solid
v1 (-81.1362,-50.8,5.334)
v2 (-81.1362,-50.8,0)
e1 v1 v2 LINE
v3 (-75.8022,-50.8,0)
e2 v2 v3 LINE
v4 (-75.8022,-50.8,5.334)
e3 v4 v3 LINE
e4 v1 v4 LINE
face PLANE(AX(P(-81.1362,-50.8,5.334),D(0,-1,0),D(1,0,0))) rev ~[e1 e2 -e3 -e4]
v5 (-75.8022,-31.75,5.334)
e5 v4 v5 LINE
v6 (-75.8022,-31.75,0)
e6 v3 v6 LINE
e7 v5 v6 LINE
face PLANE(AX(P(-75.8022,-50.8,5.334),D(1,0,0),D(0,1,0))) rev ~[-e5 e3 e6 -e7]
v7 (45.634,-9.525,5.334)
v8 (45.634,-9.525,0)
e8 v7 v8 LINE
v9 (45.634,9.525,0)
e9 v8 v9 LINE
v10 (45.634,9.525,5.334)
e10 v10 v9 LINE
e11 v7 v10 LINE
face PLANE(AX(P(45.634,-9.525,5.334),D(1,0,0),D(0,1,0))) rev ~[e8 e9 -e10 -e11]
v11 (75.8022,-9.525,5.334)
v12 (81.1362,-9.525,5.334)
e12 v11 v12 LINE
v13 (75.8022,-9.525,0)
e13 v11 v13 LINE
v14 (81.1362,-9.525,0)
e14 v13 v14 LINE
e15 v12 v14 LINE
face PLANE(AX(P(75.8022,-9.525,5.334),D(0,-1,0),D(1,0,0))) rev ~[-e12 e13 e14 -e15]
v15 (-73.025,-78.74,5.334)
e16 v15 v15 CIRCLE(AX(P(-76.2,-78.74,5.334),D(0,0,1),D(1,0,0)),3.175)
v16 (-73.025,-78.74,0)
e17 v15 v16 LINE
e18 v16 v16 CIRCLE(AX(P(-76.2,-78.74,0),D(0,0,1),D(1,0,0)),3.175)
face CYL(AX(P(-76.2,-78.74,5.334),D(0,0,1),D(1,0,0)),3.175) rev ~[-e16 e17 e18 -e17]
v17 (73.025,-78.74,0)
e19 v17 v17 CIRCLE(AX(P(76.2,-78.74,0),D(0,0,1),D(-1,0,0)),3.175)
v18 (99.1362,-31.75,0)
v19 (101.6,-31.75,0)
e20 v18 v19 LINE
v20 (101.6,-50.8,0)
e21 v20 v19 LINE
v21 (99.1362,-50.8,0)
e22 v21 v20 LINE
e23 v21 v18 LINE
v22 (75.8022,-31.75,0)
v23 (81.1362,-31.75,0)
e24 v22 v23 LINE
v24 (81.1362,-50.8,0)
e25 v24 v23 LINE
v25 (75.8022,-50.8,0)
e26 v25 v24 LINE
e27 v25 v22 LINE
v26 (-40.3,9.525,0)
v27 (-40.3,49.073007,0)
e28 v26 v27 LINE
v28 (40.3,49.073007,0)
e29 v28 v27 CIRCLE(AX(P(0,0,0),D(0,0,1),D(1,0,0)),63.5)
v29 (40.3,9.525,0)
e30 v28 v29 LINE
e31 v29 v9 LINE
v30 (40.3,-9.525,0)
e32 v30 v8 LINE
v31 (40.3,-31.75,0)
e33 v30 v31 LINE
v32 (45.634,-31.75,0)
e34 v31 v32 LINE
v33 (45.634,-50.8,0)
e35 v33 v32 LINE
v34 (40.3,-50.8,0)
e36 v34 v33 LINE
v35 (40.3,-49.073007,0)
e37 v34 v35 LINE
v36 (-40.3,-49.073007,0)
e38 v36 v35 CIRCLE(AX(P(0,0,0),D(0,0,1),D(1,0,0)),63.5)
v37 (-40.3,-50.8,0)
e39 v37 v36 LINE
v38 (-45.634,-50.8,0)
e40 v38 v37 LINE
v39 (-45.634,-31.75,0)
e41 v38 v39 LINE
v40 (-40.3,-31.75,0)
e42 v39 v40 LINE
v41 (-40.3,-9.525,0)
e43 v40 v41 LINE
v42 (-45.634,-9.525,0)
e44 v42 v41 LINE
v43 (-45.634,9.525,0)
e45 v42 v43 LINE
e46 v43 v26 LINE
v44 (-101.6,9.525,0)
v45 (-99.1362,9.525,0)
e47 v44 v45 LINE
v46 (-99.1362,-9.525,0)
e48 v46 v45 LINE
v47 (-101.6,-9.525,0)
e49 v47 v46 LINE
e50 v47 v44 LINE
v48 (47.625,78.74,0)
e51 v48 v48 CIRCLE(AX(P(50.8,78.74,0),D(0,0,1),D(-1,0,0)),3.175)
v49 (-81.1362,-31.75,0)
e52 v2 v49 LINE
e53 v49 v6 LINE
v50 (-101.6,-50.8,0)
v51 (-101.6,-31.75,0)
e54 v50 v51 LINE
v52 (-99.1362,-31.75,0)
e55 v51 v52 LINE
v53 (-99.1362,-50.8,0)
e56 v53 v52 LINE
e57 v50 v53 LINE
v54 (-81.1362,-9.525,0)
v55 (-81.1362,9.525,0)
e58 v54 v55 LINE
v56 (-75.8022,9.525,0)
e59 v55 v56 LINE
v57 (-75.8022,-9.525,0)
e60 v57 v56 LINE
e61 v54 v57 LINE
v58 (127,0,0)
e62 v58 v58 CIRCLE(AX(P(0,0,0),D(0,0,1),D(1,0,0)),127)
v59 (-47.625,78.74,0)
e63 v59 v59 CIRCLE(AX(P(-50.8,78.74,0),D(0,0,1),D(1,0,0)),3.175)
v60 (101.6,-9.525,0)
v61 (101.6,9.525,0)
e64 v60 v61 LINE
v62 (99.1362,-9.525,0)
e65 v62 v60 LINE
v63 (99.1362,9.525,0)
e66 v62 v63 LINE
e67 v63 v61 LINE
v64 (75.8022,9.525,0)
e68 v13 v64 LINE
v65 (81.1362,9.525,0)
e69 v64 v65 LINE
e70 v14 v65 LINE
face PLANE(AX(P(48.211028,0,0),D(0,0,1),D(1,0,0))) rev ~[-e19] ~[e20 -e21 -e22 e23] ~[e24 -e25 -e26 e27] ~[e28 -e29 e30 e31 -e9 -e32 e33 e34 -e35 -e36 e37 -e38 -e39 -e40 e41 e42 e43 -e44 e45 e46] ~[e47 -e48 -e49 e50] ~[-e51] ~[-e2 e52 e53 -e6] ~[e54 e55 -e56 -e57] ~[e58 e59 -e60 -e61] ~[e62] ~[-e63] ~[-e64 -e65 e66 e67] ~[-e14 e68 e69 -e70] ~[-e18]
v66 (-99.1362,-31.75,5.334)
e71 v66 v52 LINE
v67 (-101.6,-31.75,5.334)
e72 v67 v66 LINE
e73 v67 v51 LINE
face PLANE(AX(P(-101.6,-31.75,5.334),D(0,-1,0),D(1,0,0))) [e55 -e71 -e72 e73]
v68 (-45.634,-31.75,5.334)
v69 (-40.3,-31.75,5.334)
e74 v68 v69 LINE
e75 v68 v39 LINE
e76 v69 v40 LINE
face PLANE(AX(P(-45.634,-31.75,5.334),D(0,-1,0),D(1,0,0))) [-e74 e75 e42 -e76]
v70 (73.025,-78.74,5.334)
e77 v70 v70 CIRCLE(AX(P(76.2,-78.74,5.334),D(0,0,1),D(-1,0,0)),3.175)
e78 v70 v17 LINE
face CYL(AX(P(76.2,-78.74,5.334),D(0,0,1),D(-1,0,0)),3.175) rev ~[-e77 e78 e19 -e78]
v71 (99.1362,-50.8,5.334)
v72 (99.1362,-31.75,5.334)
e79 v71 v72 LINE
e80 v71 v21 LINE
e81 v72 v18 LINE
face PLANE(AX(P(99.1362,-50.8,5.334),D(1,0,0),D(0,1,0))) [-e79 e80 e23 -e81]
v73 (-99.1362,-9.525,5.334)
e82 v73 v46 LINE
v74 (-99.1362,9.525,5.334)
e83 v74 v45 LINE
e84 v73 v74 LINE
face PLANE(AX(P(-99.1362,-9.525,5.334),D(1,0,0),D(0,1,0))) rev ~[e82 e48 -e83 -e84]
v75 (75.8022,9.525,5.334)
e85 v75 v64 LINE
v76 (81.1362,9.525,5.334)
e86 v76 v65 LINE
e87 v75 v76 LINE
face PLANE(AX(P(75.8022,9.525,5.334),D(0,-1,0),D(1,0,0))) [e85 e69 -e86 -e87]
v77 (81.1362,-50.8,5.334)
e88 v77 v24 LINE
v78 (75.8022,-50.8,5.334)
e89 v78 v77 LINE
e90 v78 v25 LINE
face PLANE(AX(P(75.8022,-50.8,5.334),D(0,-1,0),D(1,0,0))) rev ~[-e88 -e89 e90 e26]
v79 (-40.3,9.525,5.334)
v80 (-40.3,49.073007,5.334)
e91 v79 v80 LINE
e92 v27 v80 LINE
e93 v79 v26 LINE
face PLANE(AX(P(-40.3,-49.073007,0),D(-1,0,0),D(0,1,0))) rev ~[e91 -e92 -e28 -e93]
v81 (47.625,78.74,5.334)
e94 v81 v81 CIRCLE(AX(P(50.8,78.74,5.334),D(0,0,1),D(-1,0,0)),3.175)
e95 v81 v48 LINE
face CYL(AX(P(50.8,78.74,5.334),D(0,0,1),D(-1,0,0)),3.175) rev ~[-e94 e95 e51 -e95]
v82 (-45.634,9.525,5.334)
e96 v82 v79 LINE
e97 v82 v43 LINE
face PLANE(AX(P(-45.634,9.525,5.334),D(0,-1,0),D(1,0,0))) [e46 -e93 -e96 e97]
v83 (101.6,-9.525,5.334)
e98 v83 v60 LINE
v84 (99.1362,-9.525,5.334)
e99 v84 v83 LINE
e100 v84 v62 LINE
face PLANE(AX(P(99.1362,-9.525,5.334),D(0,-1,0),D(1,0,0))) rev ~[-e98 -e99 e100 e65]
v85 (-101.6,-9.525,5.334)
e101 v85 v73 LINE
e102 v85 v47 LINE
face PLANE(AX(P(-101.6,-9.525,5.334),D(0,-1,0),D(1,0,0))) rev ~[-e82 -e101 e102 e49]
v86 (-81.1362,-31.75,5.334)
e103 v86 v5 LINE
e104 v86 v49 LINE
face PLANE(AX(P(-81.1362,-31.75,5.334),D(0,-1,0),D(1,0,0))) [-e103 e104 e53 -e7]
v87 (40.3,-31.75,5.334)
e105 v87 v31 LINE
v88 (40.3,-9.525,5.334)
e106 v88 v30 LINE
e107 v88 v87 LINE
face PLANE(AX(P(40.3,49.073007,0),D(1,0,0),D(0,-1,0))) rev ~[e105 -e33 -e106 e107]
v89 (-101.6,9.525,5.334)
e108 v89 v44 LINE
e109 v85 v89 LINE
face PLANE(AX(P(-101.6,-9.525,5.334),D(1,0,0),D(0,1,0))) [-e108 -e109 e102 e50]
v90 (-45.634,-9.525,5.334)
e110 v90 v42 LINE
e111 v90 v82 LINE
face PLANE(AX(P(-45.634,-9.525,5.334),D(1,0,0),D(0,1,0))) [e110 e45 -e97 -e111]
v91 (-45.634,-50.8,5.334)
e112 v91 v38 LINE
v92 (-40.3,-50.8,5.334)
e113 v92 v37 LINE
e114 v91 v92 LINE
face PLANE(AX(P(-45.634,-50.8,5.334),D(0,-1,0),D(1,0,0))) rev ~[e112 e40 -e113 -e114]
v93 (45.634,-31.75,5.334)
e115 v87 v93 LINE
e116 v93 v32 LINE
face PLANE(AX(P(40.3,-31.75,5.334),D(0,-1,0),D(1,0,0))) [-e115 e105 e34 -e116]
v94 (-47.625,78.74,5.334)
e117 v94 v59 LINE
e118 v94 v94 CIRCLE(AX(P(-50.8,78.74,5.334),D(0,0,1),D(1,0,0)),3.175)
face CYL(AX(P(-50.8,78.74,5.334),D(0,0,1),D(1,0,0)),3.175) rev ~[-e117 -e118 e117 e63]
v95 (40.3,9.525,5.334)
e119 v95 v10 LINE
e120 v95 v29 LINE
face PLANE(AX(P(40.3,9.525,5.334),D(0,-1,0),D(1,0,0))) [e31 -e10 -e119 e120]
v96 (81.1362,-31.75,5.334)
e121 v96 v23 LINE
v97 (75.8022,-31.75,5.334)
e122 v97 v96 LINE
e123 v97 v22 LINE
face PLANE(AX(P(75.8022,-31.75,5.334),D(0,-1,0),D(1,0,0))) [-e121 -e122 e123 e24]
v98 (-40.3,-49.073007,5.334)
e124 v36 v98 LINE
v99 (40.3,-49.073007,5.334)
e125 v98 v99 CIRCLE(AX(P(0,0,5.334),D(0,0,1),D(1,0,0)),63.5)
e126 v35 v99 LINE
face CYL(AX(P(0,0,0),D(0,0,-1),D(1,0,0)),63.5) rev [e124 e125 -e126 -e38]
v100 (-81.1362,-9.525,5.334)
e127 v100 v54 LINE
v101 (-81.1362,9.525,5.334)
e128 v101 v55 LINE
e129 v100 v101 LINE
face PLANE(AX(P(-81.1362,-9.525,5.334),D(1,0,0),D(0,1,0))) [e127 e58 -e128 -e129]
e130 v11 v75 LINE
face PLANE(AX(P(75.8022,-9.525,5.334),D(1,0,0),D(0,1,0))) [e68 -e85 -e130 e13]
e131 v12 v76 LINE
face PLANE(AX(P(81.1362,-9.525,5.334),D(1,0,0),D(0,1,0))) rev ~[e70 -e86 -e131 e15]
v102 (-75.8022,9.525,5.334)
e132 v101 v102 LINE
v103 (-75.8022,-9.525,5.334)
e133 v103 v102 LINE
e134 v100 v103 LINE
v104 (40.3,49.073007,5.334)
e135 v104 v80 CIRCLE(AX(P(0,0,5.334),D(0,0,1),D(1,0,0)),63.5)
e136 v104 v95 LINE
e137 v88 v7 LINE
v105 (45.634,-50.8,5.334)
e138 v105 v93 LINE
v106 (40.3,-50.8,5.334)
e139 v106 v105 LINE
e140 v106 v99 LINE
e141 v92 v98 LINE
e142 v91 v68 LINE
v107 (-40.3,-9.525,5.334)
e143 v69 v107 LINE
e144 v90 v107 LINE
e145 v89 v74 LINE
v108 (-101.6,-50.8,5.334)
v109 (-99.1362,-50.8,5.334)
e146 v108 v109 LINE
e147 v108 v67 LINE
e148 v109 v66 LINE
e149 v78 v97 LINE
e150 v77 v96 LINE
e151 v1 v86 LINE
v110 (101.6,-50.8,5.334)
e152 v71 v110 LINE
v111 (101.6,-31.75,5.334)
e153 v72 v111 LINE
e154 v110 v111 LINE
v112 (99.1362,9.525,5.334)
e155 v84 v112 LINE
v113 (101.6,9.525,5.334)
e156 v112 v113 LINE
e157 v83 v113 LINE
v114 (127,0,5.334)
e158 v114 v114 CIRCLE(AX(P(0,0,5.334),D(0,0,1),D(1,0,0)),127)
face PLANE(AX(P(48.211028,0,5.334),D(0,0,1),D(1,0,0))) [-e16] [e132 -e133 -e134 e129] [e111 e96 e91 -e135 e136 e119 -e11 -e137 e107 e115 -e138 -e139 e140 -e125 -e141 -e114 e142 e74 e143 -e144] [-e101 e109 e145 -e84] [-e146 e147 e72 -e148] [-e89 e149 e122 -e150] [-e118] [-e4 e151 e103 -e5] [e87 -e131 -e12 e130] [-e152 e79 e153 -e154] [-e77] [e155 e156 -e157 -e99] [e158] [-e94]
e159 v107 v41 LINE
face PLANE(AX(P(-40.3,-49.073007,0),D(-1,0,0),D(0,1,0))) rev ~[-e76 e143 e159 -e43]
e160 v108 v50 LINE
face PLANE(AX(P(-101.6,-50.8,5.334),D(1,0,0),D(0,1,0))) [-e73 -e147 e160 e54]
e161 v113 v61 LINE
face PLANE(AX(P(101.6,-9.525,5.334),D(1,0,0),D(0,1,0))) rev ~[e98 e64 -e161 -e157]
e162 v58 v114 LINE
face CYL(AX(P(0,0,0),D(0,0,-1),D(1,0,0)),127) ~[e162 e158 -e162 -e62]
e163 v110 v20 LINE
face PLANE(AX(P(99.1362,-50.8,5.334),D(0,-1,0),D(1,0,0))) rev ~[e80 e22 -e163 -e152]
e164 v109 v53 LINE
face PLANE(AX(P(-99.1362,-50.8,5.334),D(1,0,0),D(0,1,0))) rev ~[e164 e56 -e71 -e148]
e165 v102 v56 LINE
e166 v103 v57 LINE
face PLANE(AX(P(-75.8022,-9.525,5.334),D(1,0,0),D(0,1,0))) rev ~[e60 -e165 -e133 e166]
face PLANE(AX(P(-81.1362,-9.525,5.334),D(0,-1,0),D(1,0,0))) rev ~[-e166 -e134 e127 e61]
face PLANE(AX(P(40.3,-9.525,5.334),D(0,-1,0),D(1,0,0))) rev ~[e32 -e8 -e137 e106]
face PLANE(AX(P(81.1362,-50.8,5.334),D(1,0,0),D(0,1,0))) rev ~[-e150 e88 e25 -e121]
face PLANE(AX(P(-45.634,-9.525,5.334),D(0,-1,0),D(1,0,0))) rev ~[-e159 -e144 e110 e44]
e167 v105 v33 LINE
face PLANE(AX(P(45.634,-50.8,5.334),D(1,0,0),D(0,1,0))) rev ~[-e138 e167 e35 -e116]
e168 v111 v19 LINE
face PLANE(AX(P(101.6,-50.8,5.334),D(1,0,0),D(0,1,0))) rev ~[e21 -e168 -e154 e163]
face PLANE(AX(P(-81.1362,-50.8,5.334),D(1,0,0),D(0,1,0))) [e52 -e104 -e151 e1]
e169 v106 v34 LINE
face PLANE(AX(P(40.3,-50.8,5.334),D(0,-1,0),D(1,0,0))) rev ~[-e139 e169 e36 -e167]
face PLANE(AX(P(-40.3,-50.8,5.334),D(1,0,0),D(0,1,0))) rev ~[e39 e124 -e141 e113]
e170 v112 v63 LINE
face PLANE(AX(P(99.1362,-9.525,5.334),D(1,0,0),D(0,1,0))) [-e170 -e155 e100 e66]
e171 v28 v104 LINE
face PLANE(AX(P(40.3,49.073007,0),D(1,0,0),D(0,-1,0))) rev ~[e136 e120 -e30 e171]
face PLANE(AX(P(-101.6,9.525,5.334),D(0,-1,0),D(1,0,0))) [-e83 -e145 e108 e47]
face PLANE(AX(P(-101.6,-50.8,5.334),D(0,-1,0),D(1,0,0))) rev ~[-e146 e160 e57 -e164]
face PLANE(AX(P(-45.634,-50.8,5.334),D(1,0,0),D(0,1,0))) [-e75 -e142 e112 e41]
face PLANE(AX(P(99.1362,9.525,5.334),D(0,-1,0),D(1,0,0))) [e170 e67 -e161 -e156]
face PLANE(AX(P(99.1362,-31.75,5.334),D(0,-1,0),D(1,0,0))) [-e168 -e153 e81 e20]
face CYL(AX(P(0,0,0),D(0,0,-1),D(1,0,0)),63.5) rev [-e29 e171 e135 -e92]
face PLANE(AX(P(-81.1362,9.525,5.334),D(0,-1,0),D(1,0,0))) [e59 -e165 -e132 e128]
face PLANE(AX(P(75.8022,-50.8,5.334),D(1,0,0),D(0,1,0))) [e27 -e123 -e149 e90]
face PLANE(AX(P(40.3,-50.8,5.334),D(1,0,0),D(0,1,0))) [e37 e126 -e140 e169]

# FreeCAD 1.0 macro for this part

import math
import FreeCAD as App
import Part
import Sketcher

V = App.Vector
Q = App.Units.Quantity


def add_polygon(sketch, points):
    """Adds a closed chain of lines whose ends are joined by coincident constraints."""
    first, n = sketch.GeometryCount, len(points)
    for a, b in zip(points, points[1:] + points[:1]):
        sketch.addGeometry(Part.LineSegment(App.Vector(*a, 0), App.Vector(*b, 0)), False)
    for i in range(n):
        sketch.addConstraint(Sketcher.Constraint("Coincident", first + i, 2, first + (i + 1) % n, 1))

doc = App.newDocument("Part")
body = doc.addObject("PartDesign::Body", "Body")

# Sketch on XY plane
sketch1 = doc.addObject("Sketcher::SketchObject", "Sketch")
body.addObject(sketch1)
sketch1.AttachmentSupport = (doc.XY_Plane, [""])
sketch1.MapMode = "FlatFace"
sketch1.addGeometry([
    Part.Circle(V(0, 0, 0), V(0, 0, 1), 127),  # 0
    Part.ArcOfCircle(Part.Circle(V(0, 0, 0), V(0, 0, 1), 63.5), math.radians(50.606291), math.radians(129.393709)),  # 1
    Part.LineSegment(V(40.3, 49.073007, 0), V(40.3, -49.073007, 0)),  # 2
    Part.ArcOfCircle(Part.Circle(V(0, 0, 0), V(0, 0, 1), 63.5), math.radians(-129.393709), math.radians(-50.606291)),  # 3
    Part.LineSegment(V(-40.3, -49.073007, 0), V(-40.3, 49.073007, 0)),  # 4
], False)
sketch1.addConstraint([
    Sketcher.Constraint("Coincident", 1, 1, 2, 1),
    Sketcher.Constraint("Coincident", 2, 2, 3, 2),
    Sketcher.Constraint("Coincident", 3, 1, 4, 1),
    Sketcher.Constraint("Coincident", 4, 2, 1, 2),
    Sketcher.Constraint("Vertical", 2),
    Sketcher.Constraint("Vertical", 4),
    Sketcher.Constraint("Coincident", 0, 3, -1, 1),
    Sketcher.Constraint("Coincident", 1, 3, -1, 1),
    Sketcher.Constraint("Coincident", 3, 3, -1, 1),
    Sketcher.Constraint("Equal", 1, 3),
    Sketcher.Constraint("Horizontal", 2, 2, 3, 1),
    Sketcher.Constraint("Diameter", 0, Q("10 in")),
    Sketcher.Constraint("Radius", 1, Q("2.5 in")),
    Sketcher.Constraint("DistanceX", -1, 1, 1, 1, 40.3),
])
pad1 = doc.addObject("PartDesign::Pad", "Pad")
body.addObject(pad1)
pad1.Profile = sketch1
pad1.Length = Q("0.21 in")

# Sketch on XY plane
sketch2 = doc.addObject("Sketcher::SketchObject", "Sketch001")
body.addObject(sketch2)
sketch2.AttachmentSupport = (doc.XY_Plane, [""])
sketch2.MapMode = "FlatFace"
sketch2.AttachmentOffset = App.Placement(V(0, 0, 0.21 * 25.4), App.Rotation())
sketch2.addGeometry([
    Part.Circle(V(-76.2, -78.74, 0), V(0, 0, 1), 3.175),
    Part.Circle(V(-50.8, 78.74, 0), V(0, 0, 1), 3.175),
    Part.Circle(V(76.2, -78.74, 0), V(0, 0, 1), 3.175),
    Part.Circle(V(50.8, 78.74, 0), V(0, 0, 1), 3.175),
], False)
sketch2.addConstraint([
    Sketcher.Constraint("Equal", 0, 1),
    Sketcher.Constraint("Equal", 1, 2),
    Sketcher.Constraint("Equal", 2, 3),
    Sketcher.Constraint("Symmetric", 0, 3, 2, 3, -2),
    Sketcher.Constraint("Symmetric", 1, 3, 3, 3, -2),
    Sketcher.Constraint("Diameter", 0, Q("0.25 in")),
    Sketcher.Constraint("DistanceX", 0, 3, -1, 1, Q("3 in")),
    Sketcher.Constraint("DistanceX", 1, 3, -1, 1, Q("2 in")),
    Sketcher.Constraint("DistanceY", 0, 3, -1, 1, Q("3.1 in")),
    Sketcher.Constraint("DistanceY", -1, 1, 1, 3, Q("3.1 in")),
])
pocket1 = doc.addObject("PartDesign::Pocket", "Pocket")
body.addObject(pocket1)
pocket1.Profile = sketch2
pocket1.Type = "ThroughAll"

# Sketch on XY plane
sketch3 = doc.addObject("Sketcher::SketchObject", "Sketch002")
body.addObject(sketch3)
sketch3.AttachmentSupport = (doc.XY_Plane, [""])
sketch3.MapMode = "FlatFace"
sketch3.AttachmentOffset = App.Placement(V(0, 0, 0.21 * 25.4), App.Rotation())
add_polygon(sketch3, [(-101.6, -31.75), (-101.6, -50.8), (-99.1362, -50.8), (-99.1362, -31.75)])  # lines 0-3
add_polygon(sketch3, [(-101.6, 9.525), (-101.6, -9.525), (-99.1362, -9.525), (-99.1362, 9.525)])  # lines 4-7
add_polygon(sketch3, [(-81.1362, -31.75), (-81.1362, -50.8), (-75.8022, -50.8), (-75.8022, -31.75)])  # lines 8-11
add_polygon(sketch3, [(-45.634, -31.75), (-45.634, -50.8), (-40.3, -50.8), (-40.3, -31.75)])  # lines 12-15
add_polygon(sketch3, [(-81.1362, 9.525), (-81.1362, -9.525), (-75.8022, -9.525), (-75.8022, 9.525)])  # lines 16-19
add_polygon(sketch3, [(40.3, 9.525), (40.3, -9.525), (45.634, -9.525), (45.634, 9.525)])  # lines 20-23
add_polygon(sketch3, [(40.3, -31.75), (40.3, -50.8), (45.634, -50.8), (45.634, -31.75)])  # lines 24-27
add_polygon(sketch3, [(75.8022, 9.525), (75.8022, -9.525), (81.1362, -9.525), (81.1362, 9.525)])  # lines 28-31
add_polygon(sketch3, [(99.1362, 9.525), (99.1362, -9.525), (101.6, -9.525), (101.6, 9.525)])  # lines 32-35
add_polygon(sketch3, [(-45.634, 9.525), (-45.634, -9.525), (-40.3, -9.525), (-40.3, 9.525)])  # lines 36-39
add_polygon(sketch3, [(75.8022, -31.75), (75.8022, -50.8), (81.1362, -50.8), (81.1362, -31.75)])  # lines 40-43
add_polygon(sketch3, [(99.1362, -31.75), (99.1362, -50.8), (101.6, -50.8), (101.6, -31.75)])  # lines 44-47
sketch3.addConstraint([
    Sketcher.Constraint("Vertical", 0),
    Sketcher.Constraint("Horizontal", 1),
    Sketcher.Constraint("Vertical", 2),
    Sketcher.Constraint("Horizontal", 3),
    Sketcher.Constraint("Vertical", 4),
    Sketcher.Constraint("Horizontal", 5),
    Sketcher.Constraint("Vertical", 6),
    Sketcher.Constraint("Horizontal", 7),
    Sketcher.Constraint("Vertical", 8),
    Sketcher.Constraint("Horizontal", 9),
    Sketcher.Constraint("Vertical", 10),
    Sketcher.Constraint("Horizontal", 11),
    Sketcher.Constraint("Vertical", 12),
    Sketcher.Constraint("Horizontal", 13),
    Sketcher.Constraint("Vertical", 14),
    Sketcher.Constraint("Horizontal", 15),
    Sketcher.Constraint("Vertical", 16),
    Sketcher.Constraint("Horizontal", 17),
    Sketcher.Constraint("Vertical", 18),
    Sketcher.Constraint("Horizontal", 19),
    Sketcher.Constraint("Vertical", 20),
    Sketcher.Constraint("Horizontal", 21),
    Sketcher.Constraint("Vertical", 22),
    Sketcher.Constraint("Horizontal", 23),
    Sketcher.Constraint("Vertical", 24),
    Sketcher.Constraint("Horizontal", 25),
    Sketcher.Constraint("Vertical", 26),
    Sketcher.Constraint("Horizontal", 27),
    Sketcher.Constraint("Vertical", 28),
    Sketcher.Constraint("Horizontal", 29),
    Sketcher.Constraint("Vertical", 30),
    Sketcher.Constraint("Horizontal", 31),
    Sketcher.Constraint("Vertical", 32),
    Sketcher.Constraint("Horizontal", 33),
    Sketcher.Constraint("Vertical", 34),
    Sketcher.Constraint("Horizontal", 35),
    Sketcher.Constraint("Vertical", 36),
    Sketcher.Constraint("Horizontal", 37),
    Sketcher.Constraint("Vertical", 38),
    Sketcher.Constraint("Horizontal", 39),
    Sketcher.Constraint("Vertical", 40),
    Sketcher.Constraint("Horizontal", 41),
    Sketcher.Constraint("Vertical", 42),
    Sketcher.Constraint("Horizontal", 43),
    Sketcher.Constraint("Vertical", 44),
    Sketcher.Constraint("Horizontal", 45),
    Sketcher.Constraint("Vertical", 46),
    Sketcher.Constraint("Horizontal", 47),
    Sketcher.Constraint("Symmetric", 18, 2, 28, 2, -1, 1),
    Sketcher.Constraint("Symmetric", 16, 2, 30, 2, -1, 1),
    Sketcher.Constraint("Symmetric", 6, 2, 32, 2, -1, 1),
    Sketcher.Constraint("Symmetric", 4, 2, 34, 2, -1, 1),
    Sketcher.Constraint("Symmetric", 22, 2, 36, 2, -1, 1),
    Sketcher.Constraint("Symmetric", 20, 2, 38, 2, -1, 1),
    Sketcher.Constraint("Symmetric", 13, 2, 24, 2, -2),
    Sketcher.Constraint("Symmetric", 15, 2, 26, 2, -2),
    Sketcher.Constraint("Symmetric", 9, 2, 40, 2, -2),
    Sketcher.Constraint("Symmetric", 11, 2, 42, 2, -2),
    Sketcher.Constraint("Symmetric", 1, 2, 44, 2, -2),
    Sketcher.Constraint("Symmetric", 3, 2, 46, 2, -2),
    Sketcher.Constraint("Horizontal", 1, 2, 8, 2),
    Sketcher.Constraint("Horizontal", 3, 2, 10, 2),
    Sketcher.Constraint("Horizontal", 9, 2, 12, 2),
    Sketcher.Constraint("Horizontal", 11, 2, 14, 2),
    Sketcher.Constraint("Horizontal", 5, 2, 16, 2),
    Sketcher.Constraint("Horizontal", 7, 2, 18, 2),
    Sketcher.Constraint("Horizontal", 17, 2, 20, 2),
    Sketcher.Constraint("Horizontal", 19, 2, 22, 2),
    Sketcher.Constraint("Horizontal", 21, 2, 28, 2),
    Sketcher.Constraint("Vertical", 3, 2, 4, 2),
    Sketcher.Constraint("Vertical", 2, 2, 5, 2),
    Sketcher.Constraint("Vertical", 11, 2, 16, 2),
    Sketcher.Constraint("Vertical", 10, 2, 17, 2),
    Sketcher.Constraint("Vertical", 23, 2, 24, 2),
    Sketcher.Constraint("Vertical", 22, 2, 25, 2),
    Sketcher.Constraint("Equal", 11, 13),
    Sketcher.Constraint("Equal", 2, 4),
    Sketcher.Constraint("DistanceX", 0, 2, -1, 1, Q("4 in")),
    Sketcher.Constraint("DistanceY", 0, 2, -1, 1, Q("2 in")),
    Sketcher.Constraint("DistanceX", 9, 1, 9, 2, Q("0.21 in")),
    Sketcher.Constraint("DistanceY", 0, 2, 0, 1, Q("0.75 in")),
    Sketcher.Constraint("DistanceX", 1, 1, 1, 2, Q("0.097 in")),
    Sketcher.Constraint("DistanceX", 8, 2, -1, 1, 81.1362),
    Sketcher.Constraint("DistanceX", 12, 2, -1, 1, 45.634),
])
pocket2 = doc.addObject("PartDesign::Pocket", "Pocket001")
body.addObject(pocket2)
pocket2.Profile = sketch3
pocket2.Type = "ThroughAll"

doc.recompute()
